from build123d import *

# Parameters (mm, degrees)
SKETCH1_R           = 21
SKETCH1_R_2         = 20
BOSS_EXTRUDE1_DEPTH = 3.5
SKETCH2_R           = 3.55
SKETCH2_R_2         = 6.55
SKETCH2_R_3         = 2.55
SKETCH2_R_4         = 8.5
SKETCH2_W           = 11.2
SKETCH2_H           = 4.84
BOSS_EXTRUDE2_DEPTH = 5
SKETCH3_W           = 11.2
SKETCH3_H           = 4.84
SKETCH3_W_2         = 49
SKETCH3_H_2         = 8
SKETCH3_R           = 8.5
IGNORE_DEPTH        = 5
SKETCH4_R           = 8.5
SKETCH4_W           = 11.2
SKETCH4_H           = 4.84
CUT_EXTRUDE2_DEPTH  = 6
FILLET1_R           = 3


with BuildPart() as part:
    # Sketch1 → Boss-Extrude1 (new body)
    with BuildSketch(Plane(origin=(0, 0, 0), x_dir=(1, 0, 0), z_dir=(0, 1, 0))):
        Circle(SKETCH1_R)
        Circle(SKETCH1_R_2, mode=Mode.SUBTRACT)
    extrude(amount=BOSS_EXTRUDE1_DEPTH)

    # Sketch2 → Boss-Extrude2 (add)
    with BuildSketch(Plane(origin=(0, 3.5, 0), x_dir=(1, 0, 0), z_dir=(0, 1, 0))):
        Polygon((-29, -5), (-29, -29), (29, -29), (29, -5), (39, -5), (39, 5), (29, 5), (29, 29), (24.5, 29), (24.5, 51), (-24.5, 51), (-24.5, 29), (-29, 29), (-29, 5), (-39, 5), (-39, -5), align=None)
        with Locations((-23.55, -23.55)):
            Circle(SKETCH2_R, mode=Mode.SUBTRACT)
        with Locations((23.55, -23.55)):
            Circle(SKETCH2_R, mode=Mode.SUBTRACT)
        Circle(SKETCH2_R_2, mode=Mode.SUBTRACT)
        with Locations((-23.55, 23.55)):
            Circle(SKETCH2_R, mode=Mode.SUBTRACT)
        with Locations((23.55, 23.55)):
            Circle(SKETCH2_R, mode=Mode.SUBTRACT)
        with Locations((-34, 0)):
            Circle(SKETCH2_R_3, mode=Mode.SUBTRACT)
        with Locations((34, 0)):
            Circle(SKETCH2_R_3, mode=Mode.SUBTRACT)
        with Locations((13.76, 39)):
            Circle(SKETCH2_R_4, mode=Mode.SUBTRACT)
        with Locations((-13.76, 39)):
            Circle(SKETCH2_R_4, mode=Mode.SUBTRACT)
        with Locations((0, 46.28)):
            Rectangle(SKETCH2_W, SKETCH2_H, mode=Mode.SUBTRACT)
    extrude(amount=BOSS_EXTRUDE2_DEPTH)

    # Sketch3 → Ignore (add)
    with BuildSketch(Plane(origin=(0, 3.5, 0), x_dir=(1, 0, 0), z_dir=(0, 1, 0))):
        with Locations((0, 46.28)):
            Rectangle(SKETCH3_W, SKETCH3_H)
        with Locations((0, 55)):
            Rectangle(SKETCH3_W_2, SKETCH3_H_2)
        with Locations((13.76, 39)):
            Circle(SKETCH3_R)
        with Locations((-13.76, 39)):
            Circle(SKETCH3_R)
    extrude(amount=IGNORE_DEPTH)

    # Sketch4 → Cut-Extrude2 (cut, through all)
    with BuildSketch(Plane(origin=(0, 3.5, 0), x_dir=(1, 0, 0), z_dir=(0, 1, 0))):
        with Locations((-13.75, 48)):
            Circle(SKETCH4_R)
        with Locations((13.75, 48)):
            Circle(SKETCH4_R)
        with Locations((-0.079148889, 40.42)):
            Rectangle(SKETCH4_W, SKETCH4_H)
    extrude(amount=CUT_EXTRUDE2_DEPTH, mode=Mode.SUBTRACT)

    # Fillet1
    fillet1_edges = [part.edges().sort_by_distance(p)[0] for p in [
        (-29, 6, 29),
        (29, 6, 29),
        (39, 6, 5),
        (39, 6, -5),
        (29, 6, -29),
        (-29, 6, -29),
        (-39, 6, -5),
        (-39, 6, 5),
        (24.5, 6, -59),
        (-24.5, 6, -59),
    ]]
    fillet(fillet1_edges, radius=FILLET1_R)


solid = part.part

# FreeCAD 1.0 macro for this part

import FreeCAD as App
import Part
import Sketcher

V = App.Vector
Q = App.Units.Quantity


def edges_at(feature, points):
    """Names of the edges that pass closest to the given points."""
    edges = feature.Shape.Edges
    near = lambda p: min(range(len(edges)), key=lambda i: edges[i].distToShape(Part.Vertex(*p))[0])
    return sorted({f"Edge{near(p) + 1}" for p in points})


def add_polygon(sketch, points):
    """Adds a closed chain of lines whose ends are joined by coincident constraints."""
    first, n = sketch.GeometryCount, len(points)
    for a, b in zip(points, points[1:] + points[:1]):
        sketch.addGeometry(Part.LineSegment(App.Vector(*a, 0), App.Vector(*b, 0)), False)
    for i in range(n):
        sketch.addConstraint(Sketcher.Constraint("Coincident", first + i, 2, first + (i + 1) % n, 1))

doc = App.newDocument("Part")
params = doc.addObject("Spreadsheet::Sheet", "Params")
for row, (alias, value) in enumerate([
    ("sketch1_diameter", "42 mm"),
    ("sketch1_diameter2", "40 mm"),
    ("pad1_length", "3.5 mm"),
    ("sketch2_diameter", "17 mm"),
    ("sketch2_diameter2", "7.1 mm"),
    ("sketch2_diameter3", "5.1 mm"),
    ("sketch2_diameter4", "13.1 mm"),
    ("sketch2_width", "58 mm"),
    ("pad2_length", "5 mm"),
    ("sketch3_diameter", "17 mm"),
    ("sketch3_width", "49 mm"),
    ("sketch3_height", "8 mm"),
    ("sketch3_width2", "11.2 mm"),
    ("sketch3_height2", "4.84 mm"),
    ("pad3_length", "5 mm"),
    ("sketch4_diameter", "17 mm"),
    ("sketch4_width", "11.2 mm"),
    ("sketch4_height", "4.84 mm"),
    ("fillet_radius", "3 mm"),
], start=1):
    params.set(f"A{row}", alias)
    params.set(f"B{row}", "=" + value)
    params.setAlias(f"B{row}", alias)

body = doc.addObject("PartDesign::Body", "Body")

# Sketch on XZ plane
sketch1 = body.newObject("Sketcher::SketchObject", "Sketch")
sketch1.AttachmentSupport = (doc.getObject("XZ_Plane"), [""])
sketch1.MapMode = "FlatFace"
sketch1.addGeometry([
    Part.Circle(V(0, 0, 0), V(0, 0, 1), 21),
    Part.Circle(V(0, 0, 0), V(0, 0, 1), 20),
], False)
sketch1.addConstraint([
    Sketcher.Constraint("Coincident", 0, 3, -1, 1),
    Sketcher.Constraint("Coincident", 1, 3, -1, 1),
    Sketcher.Constraint("Diameter", 0, Q("42 mm")),
    Sketcher.Constraint("Diameter", 1, Q("40 mm")),
])
sketch1.setExpression("Constraints[2]", "Params.sketch1_diameter")
sketch1.setExpression("Constraints[3]", "Params.sketch1_diameter2")
pad1 = body.newObject("PartDesign::Pad", "Pad")
pad1.Profile = sketch1
pad1.setExpression("Length", "Params.pad1_length")
pad1.Reversed = True

# Sketch on XZ plane
sketch2 = body.newObject("Sketcher::SketchObject", "Sketch001")
sketch2.AttachmentSupport = (doc.getObject("XZ_Plane"), [""])
sketch2.MapMode = "FlatFace"
sketch2.AttachmentOffset = App.Placement(V(0, 0, -3.5), App.Rotation())
add_polygon(sketch2, [(-29, 5), (-29, 29), (29, 29), (29, 5), (39, 5), (39, -5), (29, -5), (29, -29), (24.5, -29), (24.5, -51), (-24.5, -51), (-24.5, -29), (-29, -29), (-29, -5), (-39, -5), (-39, 5)])  # lines 0-15
sketch2.addGeometry(Part.Circle(V(-23.55, 23.55, 0), V(0, 0, 1), 3.55), False)  # 16
sketch2.addGeometry(Part.Circle(V(-34, 0, 0), V(0, 0, 1), 2.55), False)  # 17
sketch2.addGeometry(Part.Circle(V(23.55, 23.55, 0), V(0, 0, 1), 3.55), False)  # 18
sketch2.addGeometry(Part.Circle(V(0, 0, 0), V(0, 0, 1), 6.55), False)  # 19
sketch2.addGeometry(Part.Circle(V(34, 0, 0), V(0, 0, 1), 2.55), False)  # 20
sketch2.addGeometry(Part.Circle(V(-23.55, -23.55, 0), V(0, 0, 1), 3.55), False)  # 21
sketch2.addGeometry(Part.Circle(V(-13.76, -39, 0), V(0, 0, 1), 8.5), False)  # 22
sketch2.addGeometry(Part.Circle(V(23.55, -23.55, 0), V(0, 0, 1), 3.55), False)  # 23
sketch2.addGeometry(Part.Circle(V(13.76, -39, 0), V(0, 0, 1), 8.5), False)  # 24
add_polygon(sketch2, [(5.6, -43.86), (-5.6, -43.86), (-5.6, -48.7), (5.6, -48.7)])  # lines 25-28
sketch2.addConstraint([
    Sketcher.Constraint("Vertical", 0),
    Sketcher.Constraint("Horizontal", 1),
    Sketcher.Constraint("Vertical", 2),
    Sketcher.Constraint("Horizontal", 3),
    Sketcher.Constraint("Vertical", 4),
    Sketcher.Constraint("Horizontal", 5),
    Sketcher.Constraint("Vertical", 6),
    Sketcher.Constraint("Horizontal", 7),
    Sketcher.Constraint("Vertical", 8),
    Sketcher.Constraint("Horizontal", 9),
    Sketcher.Constraint("Vertical", 10),
    Sketcher.Constraint("Horizontal", 11),
    Sketcher.Constraint("Vertical", 12),
    Sketcher.Constraint("Horizontal", 13),
    Sketcher.Constraint("Vertical", 14),
    Sketcher.Constraint("Horizontal", 15),
    Sketcher.Constraint("Horizontal", 25),
    Sketcher.Constraint("Vertical", 26),
    Sketcher.Constraint("Horizontal", 27),
    Sketcher.Constraint("Vertical", 28),
    Sketcher.Constraint("Coincident", 19, 3, -1, 1),
    Sketcher.Constraint("Equal", 16, 18),
    Sketcher.Constraint("Equal", 17, 20),
    Sketcher.Constraint("Equal", 18, 21),
    Sketcher.Constraint("Equal", 21, 23),
    Sketcher.Constraint("Equal", 22, 24),
    Sketcher.Constraint("Symmetric", 17, 3, 20, 3, -1, 1),
    Sketcher.Constraint("Symmetric", 18, 3, 21, 3, -1, 1),
    Sketcher.Constraint("Symmetric", 16, 3, 23, 3, -1, 1),
    Sketcher.Constraint("Symmetric", 0, 2, 6, 2, -1, 1),
    Sketcher.Constraint("Symmetric", 1, 2, 11, 2, -1, 1),
    Sketcher.Constraint("Symmetric", 3, 2, 13, 2, -1, 1),
    Sketcher.Constraint("Symmetric", 16, 3, 18, 3, -2),
    Sketcher.Constraint("Symmetric", 22, 3, 24, 3, -2),
    Sketcher.Constraint("Symmetric", 5, 2, 12, 2, -2),
    Sketcher.Constraint("PointOnObject", 17, 3, -1),
    Sketcher.Constraint("Horizontal", 3, 2, 14, 2),
    Sketcher.Constraint("Equal", 7, 11),
    Sketcher.Constraint("Equal", 15, 4),
    Sketcher.Constraint("Diameter", 22, Q("17 mm")),
    Sketcher.Constraint("Diameter", 16, Q("7.1 mm")),
    Sketcher.Constraint("Diameter", 17, Q("5.1 mm")),
    Sketcher.Constraint("Diameter", 19, Q("13.1 mm")),
    Sketcher.Constraint("DistanceX", 1, 1, 1, 2, Q("58 mm")),
    Sketcher.Constraint("DistanceX", 3, 1, 3, 2, Q("10 mm")),
    Sketcher.Constraint("DistanceX", 9, 2, 9, 1, Q("49 mm")),
    Sketcher.Constraint("DistanceY", 0, 1, 0, 2, Q("24 mm")),
    Sketcher.Constraint("DistanceY", 8, 2, 8, 1, Q("22 mm")),
    Sketcher.Constraint("DistanceX", 25, 2, 25, 1, Q("11.2 mm")),
    Sketcher.Constraint("DistanceX", 17, 3, -1, 1, Q("34 mm")),
    Sketcher.Constraint("DistanceY", 22, 3, -1, 1, Q("39 mm")),
    Sketcher.Constraint("DistanceY", 26, 2, 26, 1, Q("4.84 mm")),
    Sketcher.Constraint("DistanceX", 25, 2, -1, 1, Q("5.6 mm")),
    Sketcher.Constraint("DistanceY", 26, 2, -1, 1, Q("48.7 mm")),
    Sketcher.Constraint("DistanceX", 16, 3, 18, 3, Q("47.1 mm")),
    Sketcher.Constraint("DistanceY", 21, 3, 16, 3, Q("47.1 mm")),
    Sketcher.Constraint("DistanceX", 22, 3, -1, 1, Q("13.76 mm")),
])
sketch2.setExpression("Constraints[59]", "Params.sketch2_diameter")
sketch2.setExpression("Constraints[60]", "Params.sketch2_diameter2")
sketch2.setExpression("Constraints[61]", "Params.sketch2_diameter3")
sketch2.setExpression("Constraints[62]", "Params.sketch2_diameter4")
sketch2.setExpression("Constraints[63]", "Params.sketch2_width")
pad2 = body.newObject("PartDesign::Pad", "Pad001")
pad2.Profile = sketch2
pad2.setExpression("Length", "Params.pad2_length")
pad2.Reversed = True

# Sketch on XZ plane
sketch3 = body.newObject("Sketcher::SketchObject", "Sketch002")
sketch3.AttachmentSupport = (doc.getObject("XZ_Plane"), [""])
sketch3.MapMode = "FlatFace"
sketch3.AttachmentOffset = App.Placement(V(0, 0, -3.5), App.Rotation())
add_polygon(sketch3, [(-5.6, -48.7), (-5.6, -43.86), (5.6, -43.86), (5.6, -48.7)])  # lines 0-3
add_polygon(sketch3, [(-24.5, -59), (-24.5, -51), (24.5, -51), (24.5, -59)])  # lines 4-7
sketch3.addGeometry(Part.Circle(V(13.76, -39, 0), V(0, 0, 1), 8.5), False)  # 8
sketch3.addGeometry(Part.Circle(V(-13.76, -39, 0), V(0, 0, 1), 8.5), False)  # 9
sketch3.addConstraint([
    Sketcher.Constraint("Vertical", 0),
    Sketcher.Constraint("Horizontal", 1),
    Sketcher.Constraint("Vertical", 2),
    Sketcher.Constraint("Horizontal", 3),
    Sketcher.Constraint("Vertical", 4),
    Sketcher.Constraint("Horizontal", 5),
    Sketcher.Constraint("Vertical", 6),
    Sketcher.Constraint("Horizontal", 7),
    Sketcher.Constraint("Equal", 8, 9),
    Sketcher.Constraint("Symmetric", 8, 3, 9, 3, -2),
    Sketcher.Constraint("Diameter", 8, Q("17 mm")),
    Sketcher.Constraint("DistanceX", 5, 1, 5, 2, Q("49 mm")),
    Sketcher.Constraint("DistanceY", 4, 1, 4, 2, Q("8 mm")),
    Sketcher.Constraint("DistanceX", 1, 1, 1, 2, Q("11.2 mm")),
    Sketcher.Constraint("DistanceY", 8, 3, -1, 1, Q("39 mm")),
    Sketcher.Constraint("DistanceY", 4, 2, -1, 1, Q("51 mm")),
    Sketcher.Constraint("DistanceY", 0, 1, 0, 2, Q("4.84 mm")),
    Sketcher.Constraint("DistanceX", 0, 2, -1, 1, Q("5.6 mm")),
    Sketcher.Constraint("DistanceY", 2, 2, -1, 1, Q("48.7 mm")),
    Sketcher.Constraint("DistanceX", 4, 2, -1, 1, Q("24.5 mm")),
    Sketcher.Constraint("DistanceX", -1, 1, 8, 3, Q("13.76 mm")),
])
sketch3.setExpression("Constraints[18]", "Params.sketch3_diameter")
sketch3.setExpression("Constraints[19]", "Params.sketch3_width")
sketch3.setExpression("Constraints[20]", "Params.sketch3_height")
sketch3.setExpression("Constraints[21]", "Params.sketch3_width2")
sketch3.setExpression("Constraints[24]", "Params.sketch3_height2")
pad3 = body.newObject("PartDesign::Pad", "Pad002")
pad3.Profile = sketch3
pad3.setExpression("Length", "Params.pad3_length")
pad3.Reversed = True

# Sketch on XZ plane
sketch4 = body.newObject("Sketcher::SketchObject", "Sketch003")
sketch4.AttachmentSupport = (doc.getObject("XZ_Plane"), [""])
sketch4.MapMode = "FlatFace"
sketch4.AttachmentOffset = App.Placement(V(0, 0, -3.5), App.Rotation())
sketch4.addGeometry(Part.Circle(V(-13.75, -48, 0), V(0, 0, 1), 8.5), False)  # 0
sketch4.addGeometry(Part.Circle(V(13.75, -48, 0), V(0, 0, 1), 8.5), False)  # 1
add_polygon(sketch4, [(-5.679149, -42.84), (-5.679149, -38), (5.520851, -38), (5.520851, -42.84)])  # lines 2-5
sketch4.addConstraint([
    Sketcher.Constraint("Vertical", 2),
    Sketcher.Constraint("Horizontal", 3),
    Sketcher.Constraint("Vertical", 4),
    Sketcher.Constraint("Horizontal", 5),
    Sketcher.Constraint("Equal", 0, 1),
    Sketcher.Constraint("Symmetric", 0, 3, 1, 3, -2),
    Sketcher.Constraint("Diameter", 0, Q("17 mm")),
    Sketcher.Constraint("DistanceX", 3, 1, 3, 2, Q("11.2 mm")),
    Sketcher.Constraint("DistanceY", 0, 3, -1, 1, Q("48 mm")),
    Sketcher.Constraint("DistanceY", 2, 2, -1, 1, Q("38 mm")),
    Sketcher.Constraint("DistanceY", 2, 1, 2, 2, Q("4.84 mm")),
    Sketcher.Constraint("DistanceX", 0, 3, 1, 3, Q("27.5 mm")),
    Sketcher.Constraint("DistanceX", 2, 2, -1, 1, Q("5.679149 mm")),
])
sketch4.setExpression("Constraints[10]", "Params.sketch4_diameter")
sketch4.setExpression("Constraints[11]", "Params.sketch4_width")
sketch4.setExpression("Constraints[14]", "Params.sketch4_height")
pocket1 = body.newObject("PartDesign::Pocket", "Pocket")
pocket1.Profile = sketch4
pocket1.Type = "ThroughAll"
doc.recompute()

fillet = body.newObject("PartDesign::Fillet", "Fillet")
fillet.Base = (pocket1, edges_at(pocket1, [
    (-29, 6, 29),
    (29, 6, 29),
    (39, 6, 5),
    (39, 6, -5),
    (29, 6, -29),
    (-29, 6, -29),
    (-39, 6, -5),
    (-39, 6, 5),
    (24.5, 6, -59),
    (-24.5, 6, -59),
]))
fillet.setExpression("Radius", "Params.fillet_radius")

doc.recompute()
